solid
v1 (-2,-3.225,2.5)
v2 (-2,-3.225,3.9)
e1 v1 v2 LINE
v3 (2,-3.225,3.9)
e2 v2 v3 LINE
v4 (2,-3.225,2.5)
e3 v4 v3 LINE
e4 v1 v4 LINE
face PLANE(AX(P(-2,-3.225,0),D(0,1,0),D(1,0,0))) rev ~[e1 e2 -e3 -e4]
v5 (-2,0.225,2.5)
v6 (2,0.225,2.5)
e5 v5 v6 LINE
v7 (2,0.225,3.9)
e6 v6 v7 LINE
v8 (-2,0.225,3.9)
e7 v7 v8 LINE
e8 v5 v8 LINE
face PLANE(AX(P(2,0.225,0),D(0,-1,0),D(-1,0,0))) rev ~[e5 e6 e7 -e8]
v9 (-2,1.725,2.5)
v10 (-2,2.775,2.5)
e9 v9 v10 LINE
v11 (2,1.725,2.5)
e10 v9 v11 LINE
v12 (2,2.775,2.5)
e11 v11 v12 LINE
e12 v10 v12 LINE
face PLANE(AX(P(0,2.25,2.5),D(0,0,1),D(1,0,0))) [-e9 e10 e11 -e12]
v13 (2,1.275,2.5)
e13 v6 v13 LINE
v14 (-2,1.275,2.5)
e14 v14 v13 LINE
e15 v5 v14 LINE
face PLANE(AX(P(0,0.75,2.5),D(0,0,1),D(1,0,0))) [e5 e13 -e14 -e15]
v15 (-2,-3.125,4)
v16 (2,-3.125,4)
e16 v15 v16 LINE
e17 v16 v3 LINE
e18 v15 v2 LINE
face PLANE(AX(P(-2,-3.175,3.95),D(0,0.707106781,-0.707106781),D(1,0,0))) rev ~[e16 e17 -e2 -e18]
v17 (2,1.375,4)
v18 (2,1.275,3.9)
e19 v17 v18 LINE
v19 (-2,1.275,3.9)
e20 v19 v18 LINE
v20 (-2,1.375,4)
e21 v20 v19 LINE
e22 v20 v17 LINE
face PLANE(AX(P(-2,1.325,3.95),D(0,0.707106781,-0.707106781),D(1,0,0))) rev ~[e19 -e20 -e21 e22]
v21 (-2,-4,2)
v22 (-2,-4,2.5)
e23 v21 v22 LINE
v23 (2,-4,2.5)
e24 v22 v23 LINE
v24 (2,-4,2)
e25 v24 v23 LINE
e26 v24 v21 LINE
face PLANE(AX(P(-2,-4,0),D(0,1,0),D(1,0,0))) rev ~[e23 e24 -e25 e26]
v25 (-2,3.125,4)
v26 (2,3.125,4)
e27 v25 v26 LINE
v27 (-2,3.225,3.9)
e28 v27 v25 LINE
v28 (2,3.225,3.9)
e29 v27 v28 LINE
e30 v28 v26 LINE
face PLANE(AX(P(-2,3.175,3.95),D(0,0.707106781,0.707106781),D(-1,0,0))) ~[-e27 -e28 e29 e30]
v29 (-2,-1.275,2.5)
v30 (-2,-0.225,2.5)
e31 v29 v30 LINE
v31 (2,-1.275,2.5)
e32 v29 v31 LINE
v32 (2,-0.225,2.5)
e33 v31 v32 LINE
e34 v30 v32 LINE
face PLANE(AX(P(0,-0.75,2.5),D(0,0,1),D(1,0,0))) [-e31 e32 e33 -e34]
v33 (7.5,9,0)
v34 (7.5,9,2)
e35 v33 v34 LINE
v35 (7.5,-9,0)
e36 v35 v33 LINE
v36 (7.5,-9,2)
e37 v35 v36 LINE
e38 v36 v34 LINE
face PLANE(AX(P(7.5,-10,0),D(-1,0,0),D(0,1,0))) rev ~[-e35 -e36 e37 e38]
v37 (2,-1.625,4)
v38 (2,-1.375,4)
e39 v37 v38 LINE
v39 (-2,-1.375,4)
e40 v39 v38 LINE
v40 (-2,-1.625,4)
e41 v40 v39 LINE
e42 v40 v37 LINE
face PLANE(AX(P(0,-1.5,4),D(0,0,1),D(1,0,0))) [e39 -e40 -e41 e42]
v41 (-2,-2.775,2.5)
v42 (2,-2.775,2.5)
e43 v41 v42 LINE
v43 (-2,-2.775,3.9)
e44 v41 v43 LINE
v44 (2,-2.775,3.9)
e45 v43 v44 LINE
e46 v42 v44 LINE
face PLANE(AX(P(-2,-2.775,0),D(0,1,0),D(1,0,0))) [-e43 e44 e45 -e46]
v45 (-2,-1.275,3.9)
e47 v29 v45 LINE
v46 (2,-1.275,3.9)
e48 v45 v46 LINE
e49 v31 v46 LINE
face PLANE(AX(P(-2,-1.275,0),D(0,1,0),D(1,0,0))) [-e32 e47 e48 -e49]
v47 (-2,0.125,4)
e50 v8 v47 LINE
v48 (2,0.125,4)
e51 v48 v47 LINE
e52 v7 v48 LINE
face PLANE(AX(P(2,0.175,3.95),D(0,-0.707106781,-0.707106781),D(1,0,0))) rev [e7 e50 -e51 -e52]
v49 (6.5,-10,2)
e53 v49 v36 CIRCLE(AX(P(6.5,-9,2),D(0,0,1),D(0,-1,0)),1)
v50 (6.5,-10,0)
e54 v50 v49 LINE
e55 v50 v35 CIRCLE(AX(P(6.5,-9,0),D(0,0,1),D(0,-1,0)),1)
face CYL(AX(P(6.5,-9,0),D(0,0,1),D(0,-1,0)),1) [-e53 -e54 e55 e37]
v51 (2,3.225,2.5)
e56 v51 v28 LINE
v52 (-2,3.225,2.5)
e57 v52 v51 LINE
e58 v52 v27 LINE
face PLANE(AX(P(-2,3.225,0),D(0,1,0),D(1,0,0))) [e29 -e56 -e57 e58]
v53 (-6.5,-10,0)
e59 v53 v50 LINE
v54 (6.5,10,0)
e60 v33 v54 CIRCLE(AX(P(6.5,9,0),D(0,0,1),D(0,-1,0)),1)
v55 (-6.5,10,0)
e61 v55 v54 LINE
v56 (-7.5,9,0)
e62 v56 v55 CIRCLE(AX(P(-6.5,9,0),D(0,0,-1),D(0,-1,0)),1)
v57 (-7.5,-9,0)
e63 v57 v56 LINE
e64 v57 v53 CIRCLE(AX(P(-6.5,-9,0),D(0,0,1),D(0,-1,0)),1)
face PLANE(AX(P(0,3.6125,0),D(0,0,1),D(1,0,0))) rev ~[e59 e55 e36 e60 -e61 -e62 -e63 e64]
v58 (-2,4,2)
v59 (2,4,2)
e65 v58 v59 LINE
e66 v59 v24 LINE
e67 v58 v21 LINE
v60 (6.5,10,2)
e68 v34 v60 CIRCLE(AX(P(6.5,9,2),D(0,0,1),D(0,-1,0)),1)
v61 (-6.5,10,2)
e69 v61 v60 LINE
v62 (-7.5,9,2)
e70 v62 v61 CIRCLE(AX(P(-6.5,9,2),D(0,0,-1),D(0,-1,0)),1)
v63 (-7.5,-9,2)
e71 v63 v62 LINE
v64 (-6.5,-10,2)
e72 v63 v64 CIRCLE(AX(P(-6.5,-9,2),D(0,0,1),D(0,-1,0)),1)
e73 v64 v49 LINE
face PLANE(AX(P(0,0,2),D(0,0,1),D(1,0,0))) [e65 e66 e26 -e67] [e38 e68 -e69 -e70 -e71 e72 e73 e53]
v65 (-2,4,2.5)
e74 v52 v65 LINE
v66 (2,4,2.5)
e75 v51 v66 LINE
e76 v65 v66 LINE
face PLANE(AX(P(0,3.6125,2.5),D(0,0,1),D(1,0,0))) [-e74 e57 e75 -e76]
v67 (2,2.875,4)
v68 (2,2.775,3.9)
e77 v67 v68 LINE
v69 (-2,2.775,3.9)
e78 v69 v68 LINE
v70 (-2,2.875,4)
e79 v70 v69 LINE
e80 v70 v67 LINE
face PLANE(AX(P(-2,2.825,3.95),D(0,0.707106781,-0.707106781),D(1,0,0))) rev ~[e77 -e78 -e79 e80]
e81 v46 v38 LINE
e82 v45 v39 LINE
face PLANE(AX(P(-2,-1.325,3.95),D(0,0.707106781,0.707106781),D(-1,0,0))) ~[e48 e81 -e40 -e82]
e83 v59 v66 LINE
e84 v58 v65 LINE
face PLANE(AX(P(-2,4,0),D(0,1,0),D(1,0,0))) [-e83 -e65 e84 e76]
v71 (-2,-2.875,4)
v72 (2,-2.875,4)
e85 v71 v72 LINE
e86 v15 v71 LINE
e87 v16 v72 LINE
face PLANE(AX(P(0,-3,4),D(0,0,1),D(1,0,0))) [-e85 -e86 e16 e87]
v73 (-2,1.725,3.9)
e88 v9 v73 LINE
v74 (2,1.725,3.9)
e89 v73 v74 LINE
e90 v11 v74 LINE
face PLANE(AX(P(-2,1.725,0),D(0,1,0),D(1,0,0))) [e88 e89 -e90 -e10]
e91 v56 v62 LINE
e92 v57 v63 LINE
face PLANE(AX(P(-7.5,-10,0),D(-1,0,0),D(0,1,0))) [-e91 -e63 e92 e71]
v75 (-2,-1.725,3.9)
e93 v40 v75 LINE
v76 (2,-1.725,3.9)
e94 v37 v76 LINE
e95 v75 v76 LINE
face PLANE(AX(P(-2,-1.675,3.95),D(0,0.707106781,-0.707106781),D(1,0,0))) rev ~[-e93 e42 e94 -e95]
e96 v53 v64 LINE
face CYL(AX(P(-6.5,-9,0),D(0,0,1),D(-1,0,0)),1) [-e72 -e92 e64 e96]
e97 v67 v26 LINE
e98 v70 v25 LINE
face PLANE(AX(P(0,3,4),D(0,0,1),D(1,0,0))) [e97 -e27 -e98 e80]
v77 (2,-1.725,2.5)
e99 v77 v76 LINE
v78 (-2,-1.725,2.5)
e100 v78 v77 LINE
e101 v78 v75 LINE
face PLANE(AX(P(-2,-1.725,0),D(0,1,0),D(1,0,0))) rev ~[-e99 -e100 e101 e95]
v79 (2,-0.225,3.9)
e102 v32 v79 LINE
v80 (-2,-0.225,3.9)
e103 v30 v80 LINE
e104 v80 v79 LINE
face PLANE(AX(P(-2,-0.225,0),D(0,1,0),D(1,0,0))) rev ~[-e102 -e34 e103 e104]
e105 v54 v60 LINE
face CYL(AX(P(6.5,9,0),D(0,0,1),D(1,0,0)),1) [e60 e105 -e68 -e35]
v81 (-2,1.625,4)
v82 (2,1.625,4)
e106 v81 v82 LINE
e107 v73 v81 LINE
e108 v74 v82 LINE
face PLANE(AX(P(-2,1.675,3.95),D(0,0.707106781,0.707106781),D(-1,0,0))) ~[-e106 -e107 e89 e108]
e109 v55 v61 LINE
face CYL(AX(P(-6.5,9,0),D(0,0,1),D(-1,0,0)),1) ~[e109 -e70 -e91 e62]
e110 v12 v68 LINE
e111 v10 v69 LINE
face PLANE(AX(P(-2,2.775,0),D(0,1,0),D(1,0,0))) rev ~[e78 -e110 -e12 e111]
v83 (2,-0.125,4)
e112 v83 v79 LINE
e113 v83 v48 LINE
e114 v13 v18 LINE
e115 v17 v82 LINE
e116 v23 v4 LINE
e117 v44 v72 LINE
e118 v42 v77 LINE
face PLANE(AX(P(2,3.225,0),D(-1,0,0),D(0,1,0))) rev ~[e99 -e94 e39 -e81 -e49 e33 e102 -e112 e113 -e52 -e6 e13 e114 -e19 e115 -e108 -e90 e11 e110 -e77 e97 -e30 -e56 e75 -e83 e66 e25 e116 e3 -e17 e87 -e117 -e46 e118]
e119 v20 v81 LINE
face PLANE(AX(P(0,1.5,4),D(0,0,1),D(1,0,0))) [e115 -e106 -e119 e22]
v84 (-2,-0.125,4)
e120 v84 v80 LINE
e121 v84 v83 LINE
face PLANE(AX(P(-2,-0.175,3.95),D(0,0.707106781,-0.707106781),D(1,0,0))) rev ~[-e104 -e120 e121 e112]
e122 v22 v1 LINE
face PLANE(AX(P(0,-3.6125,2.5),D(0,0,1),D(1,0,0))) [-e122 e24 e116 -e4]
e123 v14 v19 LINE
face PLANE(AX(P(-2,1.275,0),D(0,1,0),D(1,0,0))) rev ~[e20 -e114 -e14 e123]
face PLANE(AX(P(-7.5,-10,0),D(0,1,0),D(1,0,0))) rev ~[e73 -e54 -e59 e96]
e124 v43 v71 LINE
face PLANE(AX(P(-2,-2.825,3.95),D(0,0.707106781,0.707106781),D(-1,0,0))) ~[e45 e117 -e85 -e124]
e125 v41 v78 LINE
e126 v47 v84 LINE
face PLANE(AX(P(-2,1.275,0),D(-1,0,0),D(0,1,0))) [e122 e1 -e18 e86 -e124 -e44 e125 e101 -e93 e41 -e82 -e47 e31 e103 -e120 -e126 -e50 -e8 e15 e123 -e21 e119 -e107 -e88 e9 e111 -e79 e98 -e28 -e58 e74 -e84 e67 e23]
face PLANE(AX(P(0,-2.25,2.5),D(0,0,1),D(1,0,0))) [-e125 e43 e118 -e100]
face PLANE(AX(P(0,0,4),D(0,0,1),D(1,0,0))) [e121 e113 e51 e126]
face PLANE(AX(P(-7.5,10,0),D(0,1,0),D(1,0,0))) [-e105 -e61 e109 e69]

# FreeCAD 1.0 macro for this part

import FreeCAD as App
import Part
import Sketcher

V = App.Vector
Q = App.Units.Quantity


def edges_at(feature, points):
    """Names of the edges that pass closest to the given points."""
    edges = feature.Shape.Edges
    near = lambda p: min(range(len(edges)), key=lambda i: edges[i].distToShape(Part.Vertex(*p))[0])
    return sorted({f"Edge{near(p) + 1}" for p in points})


def add_polygon(sketch, points):
    """Adds a closed chain of lines whose ends are joined by coincident constraints."""
    first, n = sketch.GeometryCount, len(points)
    for a, b in zip(points, points[1:] + points[:1]):
        sketch.addGeometry(Part.LineSegment(App.Vector(*a, 0), App.Vector(*b, 0)), False)
    for i in range(n):
        sketch.addConstraint(Sketcher.Constraint("Coincident", first + i, 2, first + (i + 1) % n, 1))

doc = App.newDocument("Part")
body = doc.addObject("PartDesign::Body", "Body")

# Sketch on XY plane
sketch1 = body.newObject("Sketcher::SketchObject", "Sketch")
sketch1.AttachmentSupport = (doc.getObject("XY_Plane"), [""])
sketch1.MapMode = "FlatFace"
add_polygon(sketch1, [(-7.5, 10), (-7.5, -10), (7.5, -10), (7.5, 10)])  # lines 0-3
add_polygon(sketch1, [(2, 4), (2, -4), (-2, -4), (-2, 4)])  # lines 4-7
sketch1.addConstraint(Sketcher.Constraint("Vertical", 0))
sketch1.addConstraint(Sketcher.Constraint("Horizontal", 1))
sketch1.addConstraint(Sketcher.Constraint("Vertical", 2))
sketch1.addConstraint(Sketcher.Constraint("Horizontal", 3))
sketch1.addConstraint(Sketcher.Constraint("Vertical", 4))
sketch1.addConstraint(Sketcher.Constraint("Horizontal", 5))
sketch1.addConstraint(Sketcher.Constraint("Vertical", 6))
sketch1.addConstraint(Sketcher.Constraint("Horizontal", 7))
sketch1.addConstraint(Sketcher.Constraint("Symmetric", 0, 2, 2, 2, -1, 1))
sketch1.addConstraint(Sketcher.Constraint("Symmetric", 4, 2, 6, 2, -1, 1))
sketch1.addConstraint(Sketcher.Constraint("DistanceX", 1, 1, 1, 2, Q("15 mm")))
sketch1.addConstraint(Sketcher.Constraint("DistanceX", 5, 2, 5, 1, Q("4 mm")))
sketch1.addConstraint(Sketcher.Constraint("DistanceY", 0, 2, 0, 1, Q("20 mm")))
sketch1.addConstraint(Sketcher.Constraint("DistanceY", 4, 2, 4, 1, Q("8 mm")))
pad1 = body.newObject("PartDesign::Pad", "Pad")
pad1.Profile = sketch1
pad1.Length = 2

# Sketch on XY plane
sketch2 = body.newObject("Sketcher::SketchObject", "Sketch001")
sketch2.AttachmentSupport = (doc.getObject("XY_Plane"), [""])
sketch2.MapMode = "FlatFace"
add_polygon(sketch2, [(-2, 4), (-2, 3.2), (2, 3.2), (2, 4)])  # lines 0-3
add_polygon(sketch2, [(-2, 1.3), (-2, 0.2), (2, 0.2), (2, 1.3)])  # lines 4-7
add_polygon(sketch2, [(-2, -0.2), (-2, -1.3), (2, -1.3), (2, -0.2)])  # lines 8-11
add_polygon(sketch2, [(-2, -3.2), (-2, -4), (2, -4), (2, -3.2)])  # lines 12-15
add_polygon(sketch2, [(-2, 2.8), (-2, 1.7), (2, 1.7), (2, 2.8)])  # lines 16-19
add_polygon(sketch2, [(-2, -1.7), (-2, -2.8), (2, -2.8), (2, -1.7)])  # lines 20-23
sketch2.addConstraint(Sketcher.Constraint("Vertical", 0))
sketch2.addConstraint(Sketcher.Constraint("Horizontal", 1))
sketch2.addConstraint(Sketcher.Constraint("Vertical", 2))
sketch2.addConstraint(Sketcher.Constraint("Horizontal", 3))
sketch2.addConstraint(Sketcher.Constraint("Vertical", 4))
sketch2.addConstraint(Sketcher.Constraint("Horizontal", 5))
sketch2.addConstraint(Sketcher.Constraint("Vertical", 6))
sketch2.addConstraint(Sketcher.Constraint("Horizontal", 7))
sketch2.addConstraint(Sketcher.Constraint("Vertical", 8))
sketch2.addConstraint(Sketcher.Constraint("Horizontal", 9))
sketch2.addConstraint(Sketcher.Constraint("Vertical", 10))
sketch2.addConstraint(Sketcher.Constraint("Horizontal", 11))
sketch2.addConstraint(Sketcher.Constraint("Vertical", 12))
sketch2.addConstraint(Sketcher.Constraint("Horizontal", 13))
sketch2.addConstraint(Sketcher.Constraint("Vertical", 14))
sketch2.addConstraint(Sketcher.Constraint("Horizontal", 15))
sketch2.addConstraint(Sketcher.Constraint("Vertical", 16))
sketch2.addConstraint(Sketcher.Constraint("Horizontal", 17))
sketch2.addConstraint(Sketcher.Constraint("Vertical", 18))
sketch2.addConstraint(Sketcher.Constraint("Horizontal", 19))
sketch2.addConstraint(Sketcher.Constraint("Vertical", 20))
sketch2.addConstraint(Sketcher.Constraint("Horizontal", 21))
sketch2.addConstraint(Sketcher.Constraint("Vertical", 22))
sketch2.addConstraint(Sketcher.Constraint("Horizontal", 23))
sketch2.addConstraint(Sketcher.Constraint("Symmetric", 6, 2, 8, 2, -1, 1))
sketch2.addConstraint(Sketcher.Constraint("Symmetric", 4, 2, 10, 2, -1, 1))
sketch2.addConstraint(Sketcher.Constraint("Symmetric", 2, 2, 12, 2, -1, 1))
sketch2.addConstraint(Sketcher.Constraint("Symmetric", 0, 2, 14, 2, -1, 1))
sketch2.addConstraint(Sketcher.Constraint("Symmetric", 18, 2, 20, 2, -1, 1))
sketch2.addConstraint(Sketcher.Constraint("Symmetric", 16, 2, 22, 2, -1, 1))
sketch2.addConstraint(Sketcher.Constraint("Vertical", 3, 2, 4, 2))
sketch2.addConstraint(Sketcher.Constraint("Vertical", 2, 2, 5, 2))
sketch2.addConstraint(Sketcher.Constraint("Vertical", 7, 2, 8, 2))
sketch2.addConstraint(Sketcher.Constraint("Vertical", 15, 2, 16, 2))
sketch2.addConstraint(Sketcher.Constraint("Vertical", 14, 2, 17, 2))
sketch2.addConstraint(Sketcher.Constraint("Equal", 10, 16))
sketch2.addConstraint(Sketcher.Constraint("DistanceX", 1, 1, 1, 2, Q("4 mm")))
sketch2.addConstraint(Sketcher.Constraint("DistanceY", -1, 1, 2, 2, Q("4 mm")))
sketch2.addConstraint(Sketcher.Constraint("DistanceY", 4, 2, 0, 2, Q("3 mm")))
sketch2.addConstraint(Sketcher.Constraint("DistanceY", 20, 2, 4, 2, Q("3 mm")))
sketch2.addConstraint(Sketcher.Constraint("DistanceY", 4, 2, 4, 1, Q("1.05 mm")))
sketch2.addConstraint(Sketcher.Constraint("DistanceY", 8, 2, 4, 2, Q("1.5 mm")))
pad2 = body.newObject("PartDesign::Pad", "Pad001")
pad2.Profile = sketch2
pad2.Length = 2.5

# Sketch on XY plane
sketch3 = body.newObject("Sketcher::SketchObject", "Sketch002")
sketch3.AttachmentSupport = (doc.getObject("XY_Plane"), [""])
sketch3.MapMode = "FlatFace"
add_polygon(sketch3, [(-2, 1.73), (-2, 1.27), (2, 1.27), (2, 1.73)])  # lines 0-3
add_polygon(sketch3, [(-2, -0.23), (2, -0.23), (2, 0.23), (-2, 0.23)])  # lines 4-7
add_polygon(sketch3, [(-2, -1.27), (-2, -1.73), (2, -1.73), (2, -1.27)])  # lines 8-11
add_polygon(sketch3, [(-2, 3.23), (-2, 2.77), (2, 2.77), (2, 3.23)])  # lines 12-15
add_polygon(sketch3, [(-2, -2.77), (-2, -3.23), (2, -3.23), (2, -2.77)])  # lines 16-19
sketch3.addConstraint(Sketcher.Constraint("Vertical", 0))
sketch3.addConstraint(Sketcher.Constraint("Horizontal", 1))
sketch3.addConstraint(Sketcher.Constraint("Vertical", 2))
sketch3.addConstraint(Sketcher.Constraint("Horizontal", 3))
sketch3.addConstraint(Sketcher.Constraint("Horizontal", 4))
sketch3.addConstraint(Sketcher.Constraint("Vertical", 5))
sketch3.addConstraint(Sketcher.Constraint("Horizontal", 6))
sketch3.addConstraint(Sketcher.Constraint("Vertical", 7))
sketch3.addConstraint(Sketcher.Constraint("Vertical", 8))
sketch3.addConstraint(Sketcher.Constraint("Horizontal", 9))
sketch3.addConstraint(Sketcher.Constraint("Vertical", 10))
sketch3.addConstraint(Sketcher.Constraint("Horizontal", 11))
sketch3.addConstraint(Sketcher.Constraint("Vertical", 12))
sketch3.addConstraint(Sketcher.Constraint("Horizontal", 13))
sketch3.addConstraint(Sketcher.Constraint("Vertical", 14))
sketch3.addConstraint(Sketcher.Constraint("Horizontal", 15))
sketch3.addConstraint(Sketcher.Constraint("Vertical", 16))
sketch3.addConstraint(Sketcher.Constraint("Horizontal", 17))
sketch3.addConstraint(Sketcher.Constraint("Vertical", 18))
sketch3.addConstraint(Sketcher.Constraint("Horizontal", 19))
sketch3.addConstraint(Sketcher.Constraint("Symmetric", 4, 2, 6, 2, -1, 1))
sketch3.addConstraint(Sketcher.Constraint("Symmetric", 2, 2, 8, 2, -1, 1))
sketch3.addConstraint(Sketcher.Constraint("Symmetric", 0, 2, 10, 2, -1, 1))
sketch3.addConstraint(Sketcher.Constraint("Symmetric", 14, 2, 16, 2, -1, 1))
sketch3.addConstraint(Sketcher.Constraint("Symmetric", 12, 2, 18, 2, -1, 1))
sketch3.addConstraint(Sketcher.Constraint("Vertical", 2, 2, 4, 2))
sketch3.addConstraint(Sketcher.Constraint("Vertical", 3, 2, 6, 2))
sketch3.addConstraint(Sketcher.Constraint("Vertical", 11, 2, 12, 2))
sketch3.addConstraint(Sketcher.Constraint("Vertical", 10, 2, 13, 2))
sketch3.addConstraint(Sketcher.Constraint("Equal", 2, 5))
sketch3.addConstraint(Sketcher.Constraint("Equal", 10, 12))
sketch3.addConstraint(Sketcher.Constraint("DistanceX", 1, 1, 1, 2, Q("4 mm")))
sketch3.addConstraint(Sketcher.Constraint("DistanceY", 8, 2, 0, 2, Q("3 mm")))
sketch3.addConstraint(Sketcher.Constraint("DistanceY", 7, 2, 12, 2, Q("3 mm")))
sketch3.addConstraint(Sketcher.Constraint("DistanceY", 0, 2, 0, 1, Q("0.45 mm")))
pad3 = body.newObject("PartDesign::Pad", "Pad002")
pad3.Profile = sketch3
pad3.Length = 4
doc.recompute()

chamfer = body.newObject("PartDesign::Chamfer", "Chamfer")
chamfer.Base = (pad3, edges_at(pad3, [
    (0, -1.725, 4),
    (0, -1.275, 4),
    (0, -0.225, 4),
    (0, 0.225, 4),
    (0, 1.275, 4),
    (0, 1.725, 4),
    (0, 2.775, 4),
    (0, 3.225, 4),
    (0, -3.225, 4),
    (0, -2.775, 4),
]))
chamfer.Size = 0.1
doc.recompute()

fillet = body.newObject("PartDesign::Fillet", "Fillet")
fillet.Base = (chamfer, edges_at(chamfer, [
    (7.5, 10, 1),
    (7.5, -10, 1),
    (-7.5, -10, 1),
    (-7.5, 10, 1),
]))
fillet.Radius = 1

doc.recompute()
